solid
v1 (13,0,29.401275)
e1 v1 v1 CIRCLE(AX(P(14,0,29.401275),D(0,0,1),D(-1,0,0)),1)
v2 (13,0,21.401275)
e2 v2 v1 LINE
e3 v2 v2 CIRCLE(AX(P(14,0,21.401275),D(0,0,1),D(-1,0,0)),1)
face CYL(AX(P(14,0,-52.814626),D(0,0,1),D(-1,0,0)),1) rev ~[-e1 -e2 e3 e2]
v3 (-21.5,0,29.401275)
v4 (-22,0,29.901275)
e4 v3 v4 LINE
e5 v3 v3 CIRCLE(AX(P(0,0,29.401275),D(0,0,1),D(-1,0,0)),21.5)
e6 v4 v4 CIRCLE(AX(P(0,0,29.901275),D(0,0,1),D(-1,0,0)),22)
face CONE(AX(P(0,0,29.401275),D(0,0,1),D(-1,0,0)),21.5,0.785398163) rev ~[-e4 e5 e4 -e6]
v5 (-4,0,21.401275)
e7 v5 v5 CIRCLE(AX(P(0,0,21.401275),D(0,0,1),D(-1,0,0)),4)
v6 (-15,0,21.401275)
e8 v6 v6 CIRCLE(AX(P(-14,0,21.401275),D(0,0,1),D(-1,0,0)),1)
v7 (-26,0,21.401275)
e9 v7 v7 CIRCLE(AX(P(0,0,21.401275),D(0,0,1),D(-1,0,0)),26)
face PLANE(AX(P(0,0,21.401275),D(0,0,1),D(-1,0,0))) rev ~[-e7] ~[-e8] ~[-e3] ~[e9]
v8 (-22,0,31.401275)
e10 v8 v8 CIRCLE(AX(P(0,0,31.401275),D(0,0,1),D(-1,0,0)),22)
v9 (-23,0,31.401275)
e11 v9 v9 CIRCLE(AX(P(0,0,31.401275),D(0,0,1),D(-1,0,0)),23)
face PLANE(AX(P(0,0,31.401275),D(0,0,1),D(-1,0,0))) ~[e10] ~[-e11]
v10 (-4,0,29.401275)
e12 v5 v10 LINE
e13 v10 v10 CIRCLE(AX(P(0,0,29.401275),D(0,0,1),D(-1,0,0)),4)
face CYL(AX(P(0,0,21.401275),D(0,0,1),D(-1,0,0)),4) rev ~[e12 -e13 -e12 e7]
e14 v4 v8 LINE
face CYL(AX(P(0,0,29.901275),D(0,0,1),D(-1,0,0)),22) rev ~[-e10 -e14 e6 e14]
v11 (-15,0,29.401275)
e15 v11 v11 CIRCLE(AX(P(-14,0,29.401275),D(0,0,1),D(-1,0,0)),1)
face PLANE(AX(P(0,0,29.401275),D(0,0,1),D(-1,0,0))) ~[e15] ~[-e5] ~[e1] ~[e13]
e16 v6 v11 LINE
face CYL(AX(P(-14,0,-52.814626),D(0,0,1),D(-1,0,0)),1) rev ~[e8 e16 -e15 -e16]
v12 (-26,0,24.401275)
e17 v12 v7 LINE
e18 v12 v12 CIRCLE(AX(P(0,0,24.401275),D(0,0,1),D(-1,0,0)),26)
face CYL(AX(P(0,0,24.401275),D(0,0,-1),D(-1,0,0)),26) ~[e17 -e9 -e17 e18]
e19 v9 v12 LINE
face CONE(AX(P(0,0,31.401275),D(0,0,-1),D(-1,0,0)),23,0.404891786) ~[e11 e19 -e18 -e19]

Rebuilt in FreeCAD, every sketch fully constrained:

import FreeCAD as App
import Part
import Sketcher
Q = App.Units.Quantity


def add_polygon(sketch, points):
    """Adds a closed chain of lines whose ends are joined by coincident constraints."""
    first, n = sketch.GeometryCount, len(points)
    for a, b in zip(points, points[1:] + points[:1]):
        sketch.addGeometry(Part.LineSegment(App.Vector(*a, 0), App.Vector(*b, 0)), False)
    for i in range(n):
        sketch.addConstraint(Sketcher.Constraint("Coincident", first + i, 2, first + (i + 1) % n, 1))

doc = App.newDocument("Part")
body = doc.addObject("PartDesign::Body", "Body")

sketch1 = body.newObject("Sketcher::SketchObject", "Sketch")
sketch1.AttachmentSupport = (doc.getObject("XZ_Plane"), [""])
sketch1.MapMode = "FlatFace"
add_polygon(sketch1, [(-26, 21.4), (-4, 21.4), (-4, 29.4), (-21.5, 29.4), (-22, 29.9), (-22, 31.4), (-23, 31.4), (-26, 24.4)])
sketch1.addConstraint([
    Sketcher.Constraint("Horizontal", 0),
    Sketcher.Constraint("Vertical", 1),
    Sketcher.Constraint("Horizontal", 2),
    Sketcher.Constraint("Vertical", 4),
    Sketcher.Constraint("Horizontal", 5),
    Sketcher.Constraint("Vertical", 7),
    Sketcher.Constraint("DistanceX", 0, 1, 0, 2, Q("22 mm")),
    Sketcher.Constraint("DistanceX", 5, 2, 5, 1, Q("1 mm")),
    Sketcher.Constraint("DistanceY", 1, 1, 1, 2, Q("8 mm")),
    Sketcher.Constraint("DistanceY", 7, 2, 7, 1, Q("3 mm")),
    Sketcher.Constraint("Angle", 3, Q("135 deg")),
    Sketcher.Constraint("DistanceX", 2, 2, 2, 1, Q("17.5 mm")),
    Sketcher.Constraint("DistanceY", 4, 1, 4, 2, Q("1.5 mm")),
    Sketcher.Constraint("DistanceX", 0, 2, -1, 1, Q("4 mm")),
    Sketcher.Constraint("DistanceX", 3, 2, -1, 1, Q("22 mm")),
    Sketcher.Constraint("DistanceY", -1, 1, 0, 2, Q("21.401275 mm")),
])
revolution = body.newObject("PartDesign::Revolution", "Revolution")
revolution.Profile = sketch1
revolution.ReferenceAxis = (sketch1, ["V_Axis"])
revolution.Angle = 360

sketch2 = body.newObject("Sketcher::SketchObject", "Sketch001")
sketch2.AttachmentSupport = (doc.getObject("XY_Plane"), [""])
sketch2.MapMode = "FlatFace"
sketch2.AttachmentOffset = App.Placement(App.Vector(0, 0, 21.401275), App.Rotation())
sketch2.addGeometry([
    Part.Circle(App.Vector(-14, 0, 0), App.Vector(0, 0, 1), 1),
    Part.Circle(App.Vector(14, 0, 0), App.Vector(0, 0, 1), 1),
], False)
sketch2.addConstraint([
    Sketcher.Constraint("Equal", 0, 1),
    Sketcher.Constraint("Symmetric", 0, 3, 1, 3, -1, 1),
    Sketcher.Constraint("PointOnObject", 0, 3, -1),
    Sketcher.Constraint("Diameter", 0, Q("2 mm")),
    Sketcher.Constraint("DistanceX", 0, 3, -1, 1, Q("14 mm")),
])
doc.recompute()
hole = body.newObject("PartDesign::Hole", "Hole")
hole.Profile = sketch2
hole.ThreadType = "None"
hole.Diameter = 2
hole.DepthType = "ThroughAll"
hole.Reversed = True

doc.recompute()
